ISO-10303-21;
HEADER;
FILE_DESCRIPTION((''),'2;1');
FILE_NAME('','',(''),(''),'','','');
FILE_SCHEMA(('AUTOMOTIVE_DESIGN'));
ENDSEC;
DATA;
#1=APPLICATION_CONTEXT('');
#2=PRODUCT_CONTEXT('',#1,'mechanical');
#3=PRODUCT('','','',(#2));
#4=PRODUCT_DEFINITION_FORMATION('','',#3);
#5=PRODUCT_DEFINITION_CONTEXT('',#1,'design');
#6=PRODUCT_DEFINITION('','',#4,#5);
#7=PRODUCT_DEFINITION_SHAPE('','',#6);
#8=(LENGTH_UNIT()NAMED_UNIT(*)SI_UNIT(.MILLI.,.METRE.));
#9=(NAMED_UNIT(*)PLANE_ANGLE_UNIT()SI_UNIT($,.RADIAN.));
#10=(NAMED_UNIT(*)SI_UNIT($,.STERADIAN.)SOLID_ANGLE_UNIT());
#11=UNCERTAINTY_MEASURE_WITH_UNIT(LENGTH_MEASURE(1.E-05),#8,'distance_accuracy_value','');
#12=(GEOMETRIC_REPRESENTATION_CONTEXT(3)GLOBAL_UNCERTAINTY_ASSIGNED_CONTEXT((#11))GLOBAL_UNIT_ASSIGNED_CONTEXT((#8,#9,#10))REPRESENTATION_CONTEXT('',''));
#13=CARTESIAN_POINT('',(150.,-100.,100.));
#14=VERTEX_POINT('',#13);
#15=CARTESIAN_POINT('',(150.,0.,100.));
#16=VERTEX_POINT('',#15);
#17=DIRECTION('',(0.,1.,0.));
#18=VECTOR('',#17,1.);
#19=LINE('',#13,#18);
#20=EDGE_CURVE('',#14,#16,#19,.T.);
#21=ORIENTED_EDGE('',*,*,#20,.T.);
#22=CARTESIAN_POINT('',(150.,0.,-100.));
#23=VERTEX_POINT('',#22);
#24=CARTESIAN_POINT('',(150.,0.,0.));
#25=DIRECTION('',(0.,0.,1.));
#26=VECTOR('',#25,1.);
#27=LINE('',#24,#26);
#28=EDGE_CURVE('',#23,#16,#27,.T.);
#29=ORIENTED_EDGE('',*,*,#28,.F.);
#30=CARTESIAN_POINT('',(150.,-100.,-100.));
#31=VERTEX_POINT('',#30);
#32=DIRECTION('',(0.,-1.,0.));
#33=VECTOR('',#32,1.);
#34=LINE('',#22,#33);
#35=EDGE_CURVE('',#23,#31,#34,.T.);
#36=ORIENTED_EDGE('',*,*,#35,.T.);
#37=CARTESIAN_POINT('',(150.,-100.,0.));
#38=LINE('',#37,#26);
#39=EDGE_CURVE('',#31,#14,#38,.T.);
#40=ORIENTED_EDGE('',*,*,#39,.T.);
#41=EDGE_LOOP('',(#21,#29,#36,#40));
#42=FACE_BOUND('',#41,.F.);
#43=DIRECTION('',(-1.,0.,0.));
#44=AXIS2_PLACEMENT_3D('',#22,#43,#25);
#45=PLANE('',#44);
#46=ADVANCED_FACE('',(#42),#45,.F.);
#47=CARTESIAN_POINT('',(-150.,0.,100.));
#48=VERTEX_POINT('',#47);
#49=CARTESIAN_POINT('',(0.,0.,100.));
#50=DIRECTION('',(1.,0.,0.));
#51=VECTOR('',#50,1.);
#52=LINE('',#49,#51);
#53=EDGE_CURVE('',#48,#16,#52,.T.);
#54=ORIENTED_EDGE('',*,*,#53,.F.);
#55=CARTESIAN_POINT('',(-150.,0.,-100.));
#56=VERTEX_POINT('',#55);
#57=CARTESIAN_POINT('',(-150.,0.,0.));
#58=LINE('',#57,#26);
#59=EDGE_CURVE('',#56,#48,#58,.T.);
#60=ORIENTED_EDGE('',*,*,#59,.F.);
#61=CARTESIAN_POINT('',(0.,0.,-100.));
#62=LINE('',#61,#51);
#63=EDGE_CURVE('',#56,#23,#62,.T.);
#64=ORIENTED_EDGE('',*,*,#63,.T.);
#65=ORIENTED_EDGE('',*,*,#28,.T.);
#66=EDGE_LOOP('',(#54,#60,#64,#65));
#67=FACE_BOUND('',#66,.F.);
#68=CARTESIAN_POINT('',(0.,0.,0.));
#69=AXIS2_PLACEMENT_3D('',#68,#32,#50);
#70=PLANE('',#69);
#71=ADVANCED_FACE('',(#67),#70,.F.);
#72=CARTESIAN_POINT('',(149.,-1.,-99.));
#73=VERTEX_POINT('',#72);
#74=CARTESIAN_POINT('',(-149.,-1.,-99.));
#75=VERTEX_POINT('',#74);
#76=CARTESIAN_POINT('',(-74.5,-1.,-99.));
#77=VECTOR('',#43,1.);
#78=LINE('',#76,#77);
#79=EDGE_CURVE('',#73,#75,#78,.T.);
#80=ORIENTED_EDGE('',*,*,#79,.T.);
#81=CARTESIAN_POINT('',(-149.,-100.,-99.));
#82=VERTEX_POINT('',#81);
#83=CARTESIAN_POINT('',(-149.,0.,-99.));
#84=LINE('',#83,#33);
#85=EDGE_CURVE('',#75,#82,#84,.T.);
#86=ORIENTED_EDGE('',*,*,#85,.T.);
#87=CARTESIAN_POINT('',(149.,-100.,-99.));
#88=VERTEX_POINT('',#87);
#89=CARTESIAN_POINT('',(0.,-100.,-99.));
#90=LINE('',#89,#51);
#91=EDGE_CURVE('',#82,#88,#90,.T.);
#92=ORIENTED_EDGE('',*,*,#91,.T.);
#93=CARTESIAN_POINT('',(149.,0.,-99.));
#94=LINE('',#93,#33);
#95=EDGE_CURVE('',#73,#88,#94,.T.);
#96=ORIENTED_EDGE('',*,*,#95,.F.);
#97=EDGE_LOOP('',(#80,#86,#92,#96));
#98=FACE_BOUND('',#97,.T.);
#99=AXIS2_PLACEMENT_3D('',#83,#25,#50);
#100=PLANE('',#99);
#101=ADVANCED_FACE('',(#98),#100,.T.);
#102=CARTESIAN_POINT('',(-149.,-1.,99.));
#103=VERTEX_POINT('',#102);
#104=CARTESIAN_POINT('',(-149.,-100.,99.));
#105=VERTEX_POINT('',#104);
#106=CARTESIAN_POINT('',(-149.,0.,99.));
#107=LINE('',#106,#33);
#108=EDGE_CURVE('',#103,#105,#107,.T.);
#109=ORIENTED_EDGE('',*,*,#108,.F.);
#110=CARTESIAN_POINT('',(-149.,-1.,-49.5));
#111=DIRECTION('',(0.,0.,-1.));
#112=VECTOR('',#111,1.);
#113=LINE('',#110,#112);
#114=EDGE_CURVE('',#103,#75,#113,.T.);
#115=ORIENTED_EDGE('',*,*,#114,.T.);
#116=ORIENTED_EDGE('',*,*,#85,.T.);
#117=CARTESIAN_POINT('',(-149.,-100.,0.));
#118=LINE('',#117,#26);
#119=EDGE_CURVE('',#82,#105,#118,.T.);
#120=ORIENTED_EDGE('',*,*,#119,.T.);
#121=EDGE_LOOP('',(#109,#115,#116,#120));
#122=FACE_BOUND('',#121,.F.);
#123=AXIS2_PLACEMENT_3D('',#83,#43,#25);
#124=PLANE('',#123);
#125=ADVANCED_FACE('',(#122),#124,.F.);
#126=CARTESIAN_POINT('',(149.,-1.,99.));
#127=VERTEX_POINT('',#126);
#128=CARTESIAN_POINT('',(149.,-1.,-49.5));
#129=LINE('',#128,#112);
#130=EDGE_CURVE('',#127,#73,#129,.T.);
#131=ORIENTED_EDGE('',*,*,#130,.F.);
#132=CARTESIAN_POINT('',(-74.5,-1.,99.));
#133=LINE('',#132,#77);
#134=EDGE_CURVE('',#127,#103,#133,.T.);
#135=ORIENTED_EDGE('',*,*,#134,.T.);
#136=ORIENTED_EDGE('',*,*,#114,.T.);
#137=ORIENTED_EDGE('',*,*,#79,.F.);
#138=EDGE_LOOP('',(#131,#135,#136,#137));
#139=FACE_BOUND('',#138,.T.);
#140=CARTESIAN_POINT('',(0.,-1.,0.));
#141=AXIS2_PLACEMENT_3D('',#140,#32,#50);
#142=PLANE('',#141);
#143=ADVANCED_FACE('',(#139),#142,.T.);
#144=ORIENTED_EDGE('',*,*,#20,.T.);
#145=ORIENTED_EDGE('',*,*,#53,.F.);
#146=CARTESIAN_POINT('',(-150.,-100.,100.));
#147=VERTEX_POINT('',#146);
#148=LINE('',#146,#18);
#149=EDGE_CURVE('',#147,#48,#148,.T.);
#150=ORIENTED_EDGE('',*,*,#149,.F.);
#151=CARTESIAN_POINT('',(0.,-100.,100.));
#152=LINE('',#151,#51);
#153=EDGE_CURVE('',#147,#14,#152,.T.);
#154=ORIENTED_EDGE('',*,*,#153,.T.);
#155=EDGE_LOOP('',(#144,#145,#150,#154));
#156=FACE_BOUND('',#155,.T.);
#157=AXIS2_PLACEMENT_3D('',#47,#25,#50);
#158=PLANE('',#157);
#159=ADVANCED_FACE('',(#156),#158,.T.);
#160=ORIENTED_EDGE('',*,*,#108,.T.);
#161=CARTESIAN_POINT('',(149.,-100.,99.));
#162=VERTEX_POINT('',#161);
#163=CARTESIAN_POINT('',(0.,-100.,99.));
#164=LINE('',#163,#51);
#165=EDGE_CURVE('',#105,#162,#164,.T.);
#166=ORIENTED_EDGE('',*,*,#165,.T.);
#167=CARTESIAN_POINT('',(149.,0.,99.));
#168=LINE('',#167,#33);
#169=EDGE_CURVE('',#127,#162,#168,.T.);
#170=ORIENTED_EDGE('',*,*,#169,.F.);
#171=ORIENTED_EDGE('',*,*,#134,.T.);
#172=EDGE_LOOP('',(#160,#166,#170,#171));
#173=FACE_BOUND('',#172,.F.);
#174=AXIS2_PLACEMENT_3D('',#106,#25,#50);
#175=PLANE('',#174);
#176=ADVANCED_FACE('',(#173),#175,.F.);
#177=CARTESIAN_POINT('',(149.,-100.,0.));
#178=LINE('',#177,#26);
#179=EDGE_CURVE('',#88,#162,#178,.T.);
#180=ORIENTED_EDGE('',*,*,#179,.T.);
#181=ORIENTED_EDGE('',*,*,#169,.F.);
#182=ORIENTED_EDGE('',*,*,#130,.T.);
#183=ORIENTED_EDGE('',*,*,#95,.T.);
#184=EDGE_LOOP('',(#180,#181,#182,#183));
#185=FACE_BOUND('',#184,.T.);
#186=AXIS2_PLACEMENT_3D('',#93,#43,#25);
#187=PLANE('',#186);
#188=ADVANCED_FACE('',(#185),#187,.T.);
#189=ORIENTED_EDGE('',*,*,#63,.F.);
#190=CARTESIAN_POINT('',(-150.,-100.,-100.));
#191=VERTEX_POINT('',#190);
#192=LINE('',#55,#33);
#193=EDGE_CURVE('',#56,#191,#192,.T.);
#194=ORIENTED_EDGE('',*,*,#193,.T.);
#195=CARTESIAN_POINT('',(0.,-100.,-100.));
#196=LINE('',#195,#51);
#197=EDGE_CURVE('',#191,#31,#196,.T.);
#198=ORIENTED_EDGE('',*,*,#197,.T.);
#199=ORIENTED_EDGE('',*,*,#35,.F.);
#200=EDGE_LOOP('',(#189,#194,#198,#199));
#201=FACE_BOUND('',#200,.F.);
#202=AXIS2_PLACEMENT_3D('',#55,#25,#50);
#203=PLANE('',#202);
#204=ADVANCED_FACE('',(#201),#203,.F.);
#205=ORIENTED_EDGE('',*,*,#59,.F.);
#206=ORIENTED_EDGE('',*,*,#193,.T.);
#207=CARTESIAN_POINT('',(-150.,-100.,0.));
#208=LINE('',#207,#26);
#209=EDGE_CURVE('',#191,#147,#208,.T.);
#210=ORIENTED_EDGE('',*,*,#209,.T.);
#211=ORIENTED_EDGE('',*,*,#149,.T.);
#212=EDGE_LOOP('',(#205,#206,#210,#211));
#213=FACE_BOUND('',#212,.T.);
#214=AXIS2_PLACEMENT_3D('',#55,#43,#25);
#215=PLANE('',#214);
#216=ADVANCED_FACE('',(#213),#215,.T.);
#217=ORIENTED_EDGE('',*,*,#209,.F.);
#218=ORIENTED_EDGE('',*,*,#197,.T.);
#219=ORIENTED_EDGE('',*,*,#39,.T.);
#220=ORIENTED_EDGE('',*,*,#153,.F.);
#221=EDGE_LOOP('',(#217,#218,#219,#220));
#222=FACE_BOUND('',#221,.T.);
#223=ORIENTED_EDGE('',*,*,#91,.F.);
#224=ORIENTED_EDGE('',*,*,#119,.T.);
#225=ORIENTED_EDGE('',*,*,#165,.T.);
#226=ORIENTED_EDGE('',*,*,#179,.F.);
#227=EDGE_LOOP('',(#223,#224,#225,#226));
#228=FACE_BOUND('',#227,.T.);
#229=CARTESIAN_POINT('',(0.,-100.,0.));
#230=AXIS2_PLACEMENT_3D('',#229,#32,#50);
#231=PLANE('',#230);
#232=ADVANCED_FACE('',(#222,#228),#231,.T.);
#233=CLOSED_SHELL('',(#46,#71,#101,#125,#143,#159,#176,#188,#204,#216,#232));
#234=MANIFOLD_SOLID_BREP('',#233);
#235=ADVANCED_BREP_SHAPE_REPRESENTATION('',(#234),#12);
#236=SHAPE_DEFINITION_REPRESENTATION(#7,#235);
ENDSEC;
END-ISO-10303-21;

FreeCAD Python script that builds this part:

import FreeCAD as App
import Part
import Sketcher
from FreeCAD import Vector


def add_polygon(sketch, points):
    """Adds a closed chain of lines whose ends are joined by coincident constraints."""
    first, n = sketch.GeometryCount, len(points)
    for a, b in zip(points, points[1:] + points[:1]):
        sketch.addGeometry(Part.LineSegment(App.Vector(*a, 0), App.Vector(*b, 0)), False)
    for i in range(n):
        sketch.addConstraint(Sketcher.Constraint("Coincident", first + i, 2, first + (i + 1) % n, 1))

doc = App.newDocument("Part")
body = doc.addObject("PartDesign::Body", "Body")

# Sketch on XZ plane
sketch1 = body.newObject("Sketcher::SketchObject", "Sketch")
sketch1.AttachmentSupport = (doc.getObject("XZ_Plane"), [""])
sketch1.MapMode = "FlatFace"
add_polygon(sketch1, [(-150, 100), (-150, -100), (150, -100), (150, 100)])  # lines 0-3
sketch1.addConstraint(Sketcher.Constraint("Vertical", 0))
sketch1.addConstraint(Sketcher.Constraint("Horizontal", 1))
sketch1.addConstraint(Sketcher.Constraint("Vertical", 2))
sketch1.addConstraint(Sketcher.Constraint("Horizontal", 3))
sketch1.addConstraint(Sketcher.Constraint("Symmetric", 0, 2, 2, 2, -1, 1))
sketch1.addConstraint(Sketcher.Constraint("DistanceX", 1, 1, 1, 2, 300.0))
sketch1.addConstraint(Sketcher.Constraint("DistanceY", 0, 2, 0, 1, 200.0))
pad1 = body.newObject("PartDesign::Pad", "Pad")
pad1.Profile = sketch1
pad1.Length = 1

# Sketch on XZ plane
sketch2 = body.newObject("Sketcher::SketchObject", "Sketch001")
sketch2.AttachmentSupport = (doc.getObject("XZ_Plane"), [""])
sketch2.MapMode = "FlatFace"
add_polygon(sketch2, [(-150, 100), (-150, -100), (150, -100), (150, 100)])  # lines 0-3
add_polygon(sketch2, [(149, -99), (-149, -99), (-149, 99), (149, 99)])  # lines 4-7
sketch2.addConstraint(Sketcher.Constraint("Vertical", 0))
sketch2.addConstraint(Sketcher.Constraint("Horizontal", 1))
sketch2.addConstraint(Sketcher.Constraint("Vertical", 2))
sketch2.addConstraint(Sketcher.Constraint("Horizontal", 3))
sketch2.addConstraint(Sketcher.Constraint("Horizontal", 4))
sketch2.addConstraint(Sketcher.Constraint("Vertical", 5))
sketch2.addConstraint(Sketcher.Constraint("Horizontal", 6))
sketch2.addConstraint(Sketcher.Constraint("Vertical", 7))
sketch2.addConstraint(Sketcher.Constraint("Symmetric", 0, 2, 2, 2, -1, 1))
sketch2.addConstraint(Sketcher.Constraint("Symmetric", 4, 2, 6, 2, -1, 1))
sketch2.addConstraint(Sketcher.Constraint("DistanceX", 1, 1, 1, 2, 300.0))
sketch2.addConstraint(Sketcher.Constraint("DistanceX", 4, 2, 4, 1, 298.0))
sketch2.addConstraint(Sketcher.Constraint("DistanceY", 0, 2, 0, 1, 200.0))
sketch2.addConstraint(Sketcher.Constraint("DistanceY", 5, 1, 5, 2, 198.0))
pad2 = body.newObject("PartDesign::Pad", "Pad001")
pad2.Profile = sketch2
pad2.Length = 100

doc.recompute()
